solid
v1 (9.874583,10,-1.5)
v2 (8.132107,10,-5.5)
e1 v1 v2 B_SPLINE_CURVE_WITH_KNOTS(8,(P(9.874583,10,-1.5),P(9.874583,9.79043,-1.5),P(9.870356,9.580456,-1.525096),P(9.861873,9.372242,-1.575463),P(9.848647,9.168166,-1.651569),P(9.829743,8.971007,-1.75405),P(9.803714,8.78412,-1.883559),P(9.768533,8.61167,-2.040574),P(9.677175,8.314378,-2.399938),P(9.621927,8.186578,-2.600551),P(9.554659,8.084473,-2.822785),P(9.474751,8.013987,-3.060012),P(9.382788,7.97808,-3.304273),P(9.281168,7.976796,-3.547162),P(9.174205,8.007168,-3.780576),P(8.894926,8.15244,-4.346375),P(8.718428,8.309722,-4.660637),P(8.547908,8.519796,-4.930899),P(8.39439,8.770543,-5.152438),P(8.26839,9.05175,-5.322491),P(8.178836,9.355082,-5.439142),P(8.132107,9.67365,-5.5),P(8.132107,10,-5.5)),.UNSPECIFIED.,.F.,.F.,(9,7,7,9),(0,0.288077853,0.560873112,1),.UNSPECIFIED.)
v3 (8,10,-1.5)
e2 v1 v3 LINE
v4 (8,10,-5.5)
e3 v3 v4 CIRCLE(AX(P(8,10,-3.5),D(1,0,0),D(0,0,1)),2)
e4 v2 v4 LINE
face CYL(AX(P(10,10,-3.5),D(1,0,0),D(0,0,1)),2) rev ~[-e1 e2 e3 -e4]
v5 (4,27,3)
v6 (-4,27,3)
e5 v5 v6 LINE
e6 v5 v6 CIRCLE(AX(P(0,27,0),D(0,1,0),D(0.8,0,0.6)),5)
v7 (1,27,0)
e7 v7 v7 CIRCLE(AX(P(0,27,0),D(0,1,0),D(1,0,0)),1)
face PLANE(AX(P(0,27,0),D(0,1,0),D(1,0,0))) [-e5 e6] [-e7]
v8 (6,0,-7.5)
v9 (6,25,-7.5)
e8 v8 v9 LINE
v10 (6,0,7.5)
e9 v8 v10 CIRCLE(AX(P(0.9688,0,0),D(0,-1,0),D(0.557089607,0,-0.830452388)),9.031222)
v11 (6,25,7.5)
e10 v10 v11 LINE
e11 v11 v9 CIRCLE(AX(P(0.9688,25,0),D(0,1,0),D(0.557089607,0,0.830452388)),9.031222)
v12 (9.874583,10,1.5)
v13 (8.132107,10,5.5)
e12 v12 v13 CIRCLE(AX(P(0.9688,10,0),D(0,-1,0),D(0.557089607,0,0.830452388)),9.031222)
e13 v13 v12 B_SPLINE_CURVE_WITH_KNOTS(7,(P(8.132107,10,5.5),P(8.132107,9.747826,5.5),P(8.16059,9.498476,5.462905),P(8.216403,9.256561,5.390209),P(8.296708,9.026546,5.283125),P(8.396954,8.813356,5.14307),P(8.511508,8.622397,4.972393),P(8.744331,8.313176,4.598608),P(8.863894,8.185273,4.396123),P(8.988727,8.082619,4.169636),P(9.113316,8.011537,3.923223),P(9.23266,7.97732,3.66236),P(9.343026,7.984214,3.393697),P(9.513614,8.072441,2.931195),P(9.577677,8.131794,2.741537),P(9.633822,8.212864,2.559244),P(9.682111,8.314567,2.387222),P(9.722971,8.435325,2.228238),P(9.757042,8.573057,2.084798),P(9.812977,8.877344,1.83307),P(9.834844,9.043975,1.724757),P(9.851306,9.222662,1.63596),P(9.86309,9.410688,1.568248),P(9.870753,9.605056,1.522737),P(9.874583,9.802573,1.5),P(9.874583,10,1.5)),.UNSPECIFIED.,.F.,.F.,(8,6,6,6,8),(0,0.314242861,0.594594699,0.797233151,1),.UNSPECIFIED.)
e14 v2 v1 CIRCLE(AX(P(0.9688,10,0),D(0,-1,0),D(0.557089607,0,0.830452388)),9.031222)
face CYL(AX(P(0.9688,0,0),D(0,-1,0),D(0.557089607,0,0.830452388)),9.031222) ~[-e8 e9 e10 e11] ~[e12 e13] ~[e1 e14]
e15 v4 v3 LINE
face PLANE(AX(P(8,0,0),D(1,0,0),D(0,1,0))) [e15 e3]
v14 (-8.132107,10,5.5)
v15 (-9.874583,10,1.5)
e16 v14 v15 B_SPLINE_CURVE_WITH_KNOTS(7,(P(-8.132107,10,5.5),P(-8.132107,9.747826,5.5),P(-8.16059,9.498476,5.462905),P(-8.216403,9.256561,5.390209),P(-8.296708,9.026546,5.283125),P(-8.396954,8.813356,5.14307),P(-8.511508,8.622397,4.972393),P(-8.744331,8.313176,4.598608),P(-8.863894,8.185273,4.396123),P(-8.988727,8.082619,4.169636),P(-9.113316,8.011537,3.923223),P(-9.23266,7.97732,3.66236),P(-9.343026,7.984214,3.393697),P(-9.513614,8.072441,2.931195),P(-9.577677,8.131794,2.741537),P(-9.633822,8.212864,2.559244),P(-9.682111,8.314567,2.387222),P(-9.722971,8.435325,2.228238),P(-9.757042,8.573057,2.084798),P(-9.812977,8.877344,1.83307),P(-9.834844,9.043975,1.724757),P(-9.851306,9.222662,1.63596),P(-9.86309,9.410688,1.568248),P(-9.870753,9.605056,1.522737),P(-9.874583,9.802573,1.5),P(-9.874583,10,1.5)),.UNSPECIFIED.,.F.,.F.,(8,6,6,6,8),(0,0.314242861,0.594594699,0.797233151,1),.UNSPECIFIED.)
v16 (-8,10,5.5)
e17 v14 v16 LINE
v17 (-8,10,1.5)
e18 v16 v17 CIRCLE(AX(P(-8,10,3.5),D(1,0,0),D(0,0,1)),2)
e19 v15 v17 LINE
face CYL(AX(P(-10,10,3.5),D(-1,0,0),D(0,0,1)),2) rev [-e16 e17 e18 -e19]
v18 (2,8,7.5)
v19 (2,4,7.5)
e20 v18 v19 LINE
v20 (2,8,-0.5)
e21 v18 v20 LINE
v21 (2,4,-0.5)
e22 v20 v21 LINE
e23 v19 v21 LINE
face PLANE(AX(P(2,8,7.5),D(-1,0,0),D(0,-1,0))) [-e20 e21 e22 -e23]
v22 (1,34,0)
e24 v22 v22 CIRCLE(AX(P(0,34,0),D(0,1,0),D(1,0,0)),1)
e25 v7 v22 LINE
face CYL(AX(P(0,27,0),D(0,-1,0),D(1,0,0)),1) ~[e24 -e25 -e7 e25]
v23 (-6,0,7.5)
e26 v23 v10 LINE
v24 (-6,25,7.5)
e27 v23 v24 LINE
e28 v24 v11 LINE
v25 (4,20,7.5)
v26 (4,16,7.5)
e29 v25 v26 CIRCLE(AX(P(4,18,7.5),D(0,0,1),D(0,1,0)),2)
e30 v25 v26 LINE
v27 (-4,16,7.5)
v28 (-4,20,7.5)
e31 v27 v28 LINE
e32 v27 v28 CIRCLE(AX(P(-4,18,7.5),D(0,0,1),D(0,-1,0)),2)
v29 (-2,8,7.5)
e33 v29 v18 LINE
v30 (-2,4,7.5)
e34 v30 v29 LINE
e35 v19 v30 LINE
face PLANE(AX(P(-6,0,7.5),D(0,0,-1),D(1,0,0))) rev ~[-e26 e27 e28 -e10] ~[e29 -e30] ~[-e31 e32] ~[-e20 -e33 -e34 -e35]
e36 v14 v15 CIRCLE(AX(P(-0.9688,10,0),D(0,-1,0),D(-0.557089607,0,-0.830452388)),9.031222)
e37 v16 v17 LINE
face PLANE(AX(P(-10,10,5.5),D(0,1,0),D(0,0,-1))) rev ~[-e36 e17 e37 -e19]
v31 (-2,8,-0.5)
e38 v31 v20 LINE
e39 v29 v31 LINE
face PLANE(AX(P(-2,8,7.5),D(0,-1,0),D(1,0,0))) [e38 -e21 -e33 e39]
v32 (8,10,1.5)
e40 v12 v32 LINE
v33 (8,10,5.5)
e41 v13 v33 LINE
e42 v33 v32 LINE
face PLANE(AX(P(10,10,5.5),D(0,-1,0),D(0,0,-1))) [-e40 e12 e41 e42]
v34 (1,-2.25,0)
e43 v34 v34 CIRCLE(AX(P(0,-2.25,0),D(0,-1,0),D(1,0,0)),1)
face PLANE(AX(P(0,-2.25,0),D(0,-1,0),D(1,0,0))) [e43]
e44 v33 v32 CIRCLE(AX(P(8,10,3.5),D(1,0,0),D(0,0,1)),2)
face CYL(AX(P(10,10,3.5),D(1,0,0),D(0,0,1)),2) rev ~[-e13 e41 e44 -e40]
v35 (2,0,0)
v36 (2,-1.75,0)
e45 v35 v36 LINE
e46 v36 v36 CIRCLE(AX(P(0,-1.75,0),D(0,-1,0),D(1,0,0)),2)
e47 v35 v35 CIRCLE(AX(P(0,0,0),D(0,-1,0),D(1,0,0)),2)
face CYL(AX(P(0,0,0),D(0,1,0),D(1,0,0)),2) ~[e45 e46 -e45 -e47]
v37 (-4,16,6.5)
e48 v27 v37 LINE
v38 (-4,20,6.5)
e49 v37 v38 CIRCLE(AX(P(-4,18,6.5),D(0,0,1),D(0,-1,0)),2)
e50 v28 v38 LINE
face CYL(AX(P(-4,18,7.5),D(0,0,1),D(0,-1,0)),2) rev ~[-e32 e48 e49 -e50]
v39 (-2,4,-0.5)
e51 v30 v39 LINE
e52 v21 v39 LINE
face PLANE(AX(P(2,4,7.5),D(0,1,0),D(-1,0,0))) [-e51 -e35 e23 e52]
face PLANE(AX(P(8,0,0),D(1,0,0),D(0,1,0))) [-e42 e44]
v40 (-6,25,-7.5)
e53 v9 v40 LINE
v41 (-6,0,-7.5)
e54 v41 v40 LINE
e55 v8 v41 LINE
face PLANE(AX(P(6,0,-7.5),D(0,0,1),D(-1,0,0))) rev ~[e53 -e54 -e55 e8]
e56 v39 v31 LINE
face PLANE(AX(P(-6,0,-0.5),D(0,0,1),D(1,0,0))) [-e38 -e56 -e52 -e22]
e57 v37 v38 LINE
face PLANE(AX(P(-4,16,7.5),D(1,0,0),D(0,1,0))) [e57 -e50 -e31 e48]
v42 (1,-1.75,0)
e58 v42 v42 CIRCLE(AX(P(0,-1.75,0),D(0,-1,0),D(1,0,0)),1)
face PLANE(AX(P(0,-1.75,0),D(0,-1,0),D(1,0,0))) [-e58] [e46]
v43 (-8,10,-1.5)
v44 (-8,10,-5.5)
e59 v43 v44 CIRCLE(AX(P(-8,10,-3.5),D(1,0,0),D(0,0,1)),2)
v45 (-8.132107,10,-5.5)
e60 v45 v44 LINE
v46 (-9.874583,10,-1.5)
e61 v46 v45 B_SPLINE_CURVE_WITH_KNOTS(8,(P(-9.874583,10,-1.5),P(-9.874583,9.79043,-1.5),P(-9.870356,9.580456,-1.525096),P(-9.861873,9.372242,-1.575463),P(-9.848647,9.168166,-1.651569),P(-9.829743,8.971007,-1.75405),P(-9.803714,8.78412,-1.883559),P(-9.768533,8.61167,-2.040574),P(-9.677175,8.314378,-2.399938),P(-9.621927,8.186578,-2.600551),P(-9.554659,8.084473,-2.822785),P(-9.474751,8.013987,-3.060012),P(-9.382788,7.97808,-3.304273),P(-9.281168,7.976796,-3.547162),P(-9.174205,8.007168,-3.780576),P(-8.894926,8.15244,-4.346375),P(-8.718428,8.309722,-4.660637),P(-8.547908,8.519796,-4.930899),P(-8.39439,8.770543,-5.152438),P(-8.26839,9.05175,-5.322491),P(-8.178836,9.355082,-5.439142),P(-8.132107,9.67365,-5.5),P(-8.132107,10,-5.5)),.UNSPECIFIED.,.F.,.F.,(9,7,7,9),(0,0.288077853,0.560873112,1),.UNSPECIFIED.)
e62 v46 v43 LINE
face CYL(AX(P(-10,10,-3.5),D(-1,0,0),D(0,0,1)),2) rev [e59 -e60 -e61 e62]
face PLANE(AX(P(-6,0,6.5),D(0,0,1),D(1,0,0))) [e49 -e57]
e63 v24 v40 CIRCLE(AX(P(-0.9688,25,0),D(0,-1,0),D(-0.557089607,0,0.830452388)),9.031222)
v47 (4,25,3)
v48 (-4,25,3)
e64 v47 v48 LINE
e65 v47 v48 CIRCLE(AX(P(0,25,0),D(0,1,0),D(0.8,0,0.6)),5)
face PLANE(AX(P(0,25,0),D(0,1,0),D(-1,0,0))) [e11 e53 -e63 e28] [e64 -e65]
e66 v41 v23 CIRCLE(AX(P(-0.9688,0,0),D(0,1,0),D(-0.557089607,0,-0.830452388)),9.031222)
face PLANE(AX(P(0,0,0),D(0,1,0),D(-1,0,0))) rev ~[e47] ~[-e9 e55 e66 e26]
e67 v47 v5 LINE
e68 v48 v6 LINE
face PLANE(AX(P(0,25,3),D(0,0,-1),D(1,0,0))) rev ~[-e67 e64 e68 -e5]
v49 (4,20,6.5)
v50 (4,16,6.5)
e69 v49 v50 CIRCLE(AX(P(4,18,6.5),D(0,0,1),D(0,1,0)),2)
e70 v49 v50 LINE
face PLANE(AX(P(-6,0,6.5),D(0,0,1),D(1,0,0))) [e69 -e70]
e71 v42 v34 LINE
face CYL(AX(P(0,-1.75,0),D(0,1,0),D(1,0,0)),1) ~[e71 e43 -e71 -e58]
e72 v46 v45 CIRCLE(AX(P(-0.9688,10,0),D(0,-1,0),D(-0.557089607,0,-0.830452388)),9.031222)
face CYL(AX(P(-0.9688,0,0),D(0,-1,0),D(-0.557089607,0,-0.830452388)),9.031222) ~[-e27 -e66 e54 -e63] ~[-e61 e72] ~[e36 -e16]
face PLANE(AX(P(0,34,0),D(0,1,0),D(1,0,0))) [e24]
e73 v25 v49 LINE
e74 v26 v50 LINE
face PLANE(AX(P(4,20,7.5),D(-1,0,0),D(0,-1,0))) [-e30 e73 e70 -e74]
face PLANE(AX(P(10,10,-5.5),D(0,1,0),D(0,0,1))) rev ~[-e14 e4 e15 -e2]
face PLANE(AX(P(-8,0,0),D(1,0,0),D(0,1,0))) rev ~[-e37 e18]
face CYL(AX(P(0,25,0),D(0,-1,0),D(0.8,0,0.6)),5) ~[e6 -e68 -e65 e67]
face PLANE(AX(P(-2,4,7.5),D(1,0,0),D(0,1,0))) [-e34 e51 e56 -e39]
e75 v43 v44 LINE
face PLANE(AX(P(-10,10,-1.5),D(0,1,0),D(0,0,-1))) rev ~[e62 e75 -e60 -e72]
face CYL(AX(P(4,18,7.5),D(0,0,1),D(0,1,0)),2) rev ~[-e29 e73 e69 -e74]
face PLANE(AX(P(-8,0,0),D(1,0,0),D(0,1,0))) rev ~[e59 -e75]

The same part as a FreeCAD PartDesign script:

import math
import FreeCAD as App
import Part
import Sketcher
Q = App.Units.Quantity

doc = App.newDocument("Part")
body = doc.addObject("PartDesign::Body", "Body")

sketch1 = body.newObject("Sketcher::SketchObject", "Sketch")
sketch1.AttachmentSupport = (doc.getObject("XZ_Plane"), [""])
sketch1.MapMode = "FlatFace"
sketch1.addGeometry(Part.ArcOfCircle(Part.Circle(App.Vector(-1, 0, 0), App.Vector(0, 0, 1), 9), math.radians(124), math.radians(236)), False)
sketch1.addGeometry(Part.LineSegment(App.Vector(-6, 8, 0), App.Vector(6, 8, 0)), False)
sketch1.addGeometry(Part.ArcOfCircle(Part.Circle(App.Vector(1, 0, 0), App.Vector(0, 0, 1), 9), math.radians(-56), math.radians(56)), False)
sketch1.addGeometry(Part.LineSegment(App.Vector(6, -8, 0), App.Vector(-6, -8, 0)), False)
sketch1.addConstraint(Sketcher.Constraint("Coincident", 0, 1, 1, 1))
sketch1.addConstraint(Sketcher.Constraint("Coincident", 1, 2, 2, 2))
sketch1.addConstraint(Sketcher.Constraint("Coincident", 2, 1, 3, 1))
sketch1.addConstraint(Sketcher.Constraint("Coincident", 3, 2, 0, 2))
sketch1.addConstraint(Sketcher.Constraint("Horizontal", 1))
sketch1.addConstraint(Sketcher.Constraint("Horizontal", 3))
sketch1.addConstraint(Sketcher.Constraint("Equal", 0, 2))
sketch1.addConstraint(Sketcher.Constraint("Symmetric", 0, 3, 2, 3, -1, 1))
sketch1.addConstraint(Sketcher.Constraint("Symmetric", 1, 2, 2, 1, -1))
sketch1.addConstraint(Sketcher.Constraint("DistanceY", 2, 1, 1, 2, Q("15 mm")))
sketch1.addConstraint(Sketcher.Constraint("DistanceX", 1, 1, 1, 2, Q("12 mm")))
sketch1.addConstraint(Sketcher.Constraint("Radius", 0, Q("9.0312 mm")))
pad1 = body.newObject("PartDesign::Pad", "Pad")
pad1.Profile = sketch1
pad1.Length = 25
pad1.Reversed = True

sketch2 = body.newObject("Sketcher::SketchObject", "Sketch001")
sketch2.AttachmentSupport = (doc.getObject("XZ_Plane"), [""])
sketch2.MapMode = "FlatFace"
sketch2.AttachmentOffset = App.Placement(App.Vector(0, 0, -25), App.Rotation())
sketch2.addGeometry(Part.LineSegment(App.Vector(-4, 3, 0), App.Vector(4, 3, 0)), False)
sketch2.addGeometry(Part.ArcOfCircle(Part.Circle(App.Vector(0, 0, 0), App.Vector(0, 0, 1), 5), math.radians(143), math.radians(397)), False)
sketch2.addConstraint(Sketcher.Constraint("Coincident", 0, 1, 1, 1))
sketch2.addConstraint(Sketcher.Constraint("Coincident", 1, 2, 0, 2))
sketch2.addConstraint(Sketcher.Constraint("Horizontal", 0))
sketch2.addConstraint(Sketcher.Constraint("Coincident", 1, 3, -1, 1))
sketch2.addConstraint(Sketcher.Constraint("Radius", 1, Q("5 mm")))
sketch2.addConstraint(Sketcher.Constraint("DistanceY", -1, 1, 0, 1, Q("3 mm")))
pad2 = body.newObject("PartDesign::Pad", "Pad001")
pad2.Profile = sketch2
pad2.Length = 2
pad2.Reversed = True

sketch3 = body.newObject("Sketcher::SketchObject", "Sketch002")
sketch3.AttachmentSupport = (doc.getObject("XZ_Plane"), [""])
sketch3.MapMode = "FlatFace"
sketch3.AttachmentOffset = App.Placement(App.Vector(0, 0, -27), App.Rotation())
sketch3.addGeometry(Part.Circle(App.Vector(0, 0, 0), App.Vector(0, 0, 1), 1), False)
sketch3.addConstraint(Sketcher.Constraint("Coincident", 0, 3, -1, 1))
sketch3.addConstraint(Sketcher.Constraint("Diameter", 0, Q("2 mm")))
pad3 = body.newObject("PartDesign::Pad", "Pad002")
pad3.Profile = sketch3
pad3.Length = 7
pad3.Reversed = True

sketch4 = body.newObject("Sketcher::SketchObject", "Sketch003")
sketch4.AttachmentSupport = (doc.getObject("XY_Plane"), [""])
sketch4.MapMode = "FlatFace"
sketch4.AttachmentOffset = App.Placement(App.Vector(0, 0, 7.5), App.Rotation())
sketch4.addGeometry(Part.LineSegment(App.Vector(4, 16, 0), App.Vector(4, 20, 0)), False)
sketch4.addGeometry(Part.ArcOfCircle(Part.Circle(App.Vector(4, 18, 0), App.Vector(0, 0, 1), 2), math.radians(90), math.radians(270)), False)
sketch4.addGeometry(Part.LineSegment(App.Vector(-4, 20, 0), App.Vector(-4, 16, 0)), False)
sketch4.addGeometry(Part.ArcOfCircle(Part.Circle(App.Vector(-4, 18, 0), App.Vector(0, 0, 1), 2), math.radians(-90), math.radians(90)), False)
sketch4.addConstraint(Sketcher.Constraint("Coincident", 0, 1, 1, 2))
sketch4.addConstraint(Sketcher.Constraint("Coincident", 1, 1, 0, 2))
sketch4.addConstraint(Sketcher.Constraint("Coincident", 2, 1, 3, 2))
sketch4.addConstraint(Sketcher.Constraint("Coincident", 3, 1, 2, 2))
sketch4.addConstraint(Sketcher.Constraint("Vertical", 0))
sketch4.addConstraint(Sketcher.Constraint("Vertical", 2))
sketch4.addConstraint(Sketcher.Constraint("Equal", 1, 3))
sketch4.addConstraint(Sketcher.Constraint("Symmetric", 1, 3, 3, 3, -2))
sketch4.addConstraint(Sketcher.Constraint("Vertical", 1, 3, 0, 1))
sketch4.addConstraint(Sketcher.Constraint("Vertical", 3, 3, 2, 1))
sketch4.addConstraint(Sketcher.Constraint("Radius", 1, Q("2 mm")))
sketch4.addConstraint(Sketcher.Constraint("DistanceX", -1, 1, 1, 3, Q("4 mm")))
sketch4.addConstraint(Sketcher.Constraint("DistanceY", -1, 1, 1, 1, Q("20 mm")))
pocket1 = body.newObject("PartDesign::Pocket", "Pocket")
pocket1.Profile = sketch4
pocket1.Length = 1

sketch5 = body.newObject("Sketcher::SketchObject", "Sketch004")
sketch5.AttachmentSupport = (doc.getObject("XY_Plane"), [""])
sketch5.MapMode = "FlatFace"
sketch5.AttachmentOffset = App.Placement(App.Vector(0, 0, 7.5), App.Rotation())
sketch5.addGeometry(Part.LineSegment(App.Vector(2, 8, 0), App.Vector(-2, 8, 0)), False)
sketch5.addGeometry(Part.LineSegment(App.Vector(-2, 8, 0), App.Vector(-2, 4, 0)), False)
sketch5.addGeometry(Part.LineSegment(App.Vector(-2, 4, 0), App.Vector(2, 4, 0)), False)
sketch5.addGeometry(Part.LineSegment(App.Vector(2, 4, 0), App.Vector(2, 8, 0)), False)
sketch5.addConstraint(Sketcher.Constraint("Coincident", 0, 2, 1, 1))
sketch5.addConstraint(Sketcher.Constraint("Coincident", 1, 2, 2, 1))
sketch5.addConstraint(Sketcher.Constraint("Coincident", 2, 2, 3, 1))
sketch5.addConstraint(Sketcher.Constraint("Coincident", 3, 2, 0, 1))
sketch5.addConstraint(Sketcher.Constraint("Horizontal", 0))
sketch5.addConstraint(Sketcher.Constraint("Vertical", 1))
sketch5.addConstraint(Sketcher.Constraint("Horizontal", 2))
sketch5.addConstraint(Sketcher.Constraint("Vertical", 3))
sketch5.addConstraint(Sketcher.Constraint("Equal", 2, 1))
sketch5.addConstraint(Sketcher.Constraint("DistanceX", 0, 2, 0, 1, Q("4 mm")))
sketch5.addConstraint(Sketcher.Constraint("DistanceX", 0, 2, -1, 1, Q("2 mm")))
sketch5.addConstraint(Sketcher.Constraint("DistanceY", -1, 1, 0, 2, Q("8 mm")))
pocket2 = body.newObject("PartDesign::Pocket", "Pocket001")
pocket2.Profile = sketch5
pocket2.Length = 8

sketch6 = body.newObject("Sketcher::SketchObject", "Sketch005")
sketch6.AttachmentSupport = (doc.getObject("YZ_Plane"), [""])
sketch6.MapMode = "FlatFace"
sketch6.AttachmentOffset = App.Placement(App.Vector(0, 0, 10), App.Rotation())
sketch6.addGeometry(Part.LineSegment(App.Vector(10, 1.5, 0), App.Vector(10, 5.5, 0)), False)
sketch6.addGeometry(Part.ArcOfCircle(Part.Circle(App.Vector(10, 3.5, 0), App.Vector(0, 0, 1), 2), math.radians(90), math.radians(270)), False)
sketch6.addGeometry(Part.LineSegment(App.Vector(10, -5.5, 0), App.Vector(10, -1.5, 0)), False)
sketch6.addGeometry(Part.ArcOfCircle(Part.Circle(App.Vector(10, -3.5, 0), App.Vector(0, 0, 1), 2), math.radians(90), math.radians(270)), False)
sketch6.addConstraint(Sketcher.Constraint("Coincident", 0, 1, 1, 2))
sketch6.addConstraint(Sketcher.Constraint("Coincident", 1, 1, 0, 2))
sketch6.addConstraint(Sketcher.Constraint("Coincident", 2, 1, 3, 2))
sketch6.addConstraint(Sketcher.Constraint("Coincident", 3, 1, 2, 2))
sketch6.addConstraint(Sketcher.Constraint("Vertical", 0))
sketch6.addConstraint(Sketcher.Constraint("Vertical", 2))
sketch6.addConstraint(Sketcher.Constraint("Equal", 1, 3))
sketch6.addConstraint(Sketcher.Constraint("Symmetric", 1, 3, 3, 3, -1))
sketch6.addConstraint(Sketcher.Constraint("Vertical", 3, 3, 0, 1))
sketch6.addConstraint(Sketcher.Constraint("Vertical", 1, 1, 2, 1))
sketch6.addConstraint(Sketcher.Constraint("Radius", 1, Q("2 mm")))
sketch6.addConstraint(Sketcher.Constraint("DistanceX", -1, 1, 1, 3, Q("10 mm")))
sketch6.addConstraint(Sketcher.Constraint("DistanceY", 3, 3, 1, 3, Q("7 mm")))
pocket3 = body.newObject("PartDesign::Pocket", "Pocket002")
pocket3.Profile = sketch6
pocket3.Length = 2

sketch7 = body.newObject("Sketcher::SketchObject", "Sketch006")
sketch7.AttachmentSupport = (doc.getObject("YZ_Plane"), [""])
sketch7.MapMode = "FlatFace"
sketch7.AttachmentOffset = App.Placement(App.Vector(0, 0, -10), App.Rotation())
sketch7.addGeometry(Part.LineSegment(App.Vector(10, -5.5, 0), App.Vector(10, -1.5, 0)), False)
sketch7.addGeometry(Part.ArcOfCircle(Part.Circle(App.Vector(10, -3.5, 0), App.Vector(0, 0, 1), 2), math.radians(90), math.radians(270)), False)
sketch7.addGeometry(Part.LineSegment(App.Vector(10, 1.5, 0), App.Vector(10, 5.5, 0)), False)
sketch7.addGeometry(Part.ArcOfCircle(Part.Circle(App.Vector(10, 3.5, 0), App.Vector(0, 0, 1), 2), math.radians(90), math.radians(270)), False)
sketch7.addConstraint(Sketcher.Constraint("Coincident", 0, 1, 1, 2))
sketch7.addConstraint(Sketcher.Constraint("Coincident", 1, 1, 0, 2))
sketch7.addConstraint(Sketcher.Constraint("Coincident", 2, 1, 3, 2))
sketch7.addConstraint(Sketcher.Constraint("Coincident", 3, 1, 2, 2))
sketch7.addConstraint(Sketcher.Constraint("Vertical", 0))
sketch7.addConstraint(Sketcher.Constraint("Vertical", 2))
sketch7.addConstraint(Sketcher.Constraint("Equal", 1, 3))
sketch7.addConstraint(Sketcher.Constraint("Symmetric", 1, 3, 3, 3, -1))
sketch7.addConstraint(Sketcher.Constraint("Vertical", 3, 3, 0, 1))
sketch7.addConstraint(Sketcher.Constraint("Vertical", 1, 1, 2, 1))
sketch7.addConstraint(Sketcher.Constraint("Radius", 1, Q("2 mm")))
sketch7.addConstraint(Sketcher.Constraint("DistanceX", -1, 1, 1, 3, Q("10 mm")))
sketch7.addConstraint(Sketcher.Constraint("DistanceY", 1, 3, 3, 3, Q("7 mm")))
pocket4 = body.newObject("PartDesign::Pocket", "Pocket003")
pocket4.Profile = sketch7
pocket4.Length = 2
pocket4.Reversed = True

sketch8 = body.newObject("Sketcher::SketchObject", "Sketch007")
sketch8.AttachmentSupport = (doc.getObject("XZ_Plane"), [""])
sketch8.MapMode = "FlatFace"
sketch8.addGeometry(Part.Circle(App.Vector(0, 0, 0), App.Vector(0, 0, 1), 2), False)
sketch8.addConstraint(Sketcher.Constraint("Coincident", 0, 3, -1, 1))
sketch8.addConstraint(Sketcher.Constraint("Diameter", 0, Q("4 mm")))
pad4 = body.newObject("PartDesign::Pad", "Pad003")
pad4.Profile = sketch8
pad4.Length = 1.75

sketch9 = body.newObject("Sketcher::SketchObject", "Sketch008")
sketch9.AttachmentSupport = (doc.getObject("XZ_Plane"), [""])
sketch9.MapMode = "FlatFace"
sketch9.AttachmentOffset = App.Placement(App.Vector(0, 0, 1.75), App.Rotation())
sketch9.addGeometry(Part.Circle(App.Vector(0, 0, 0), App.Vector(0, 0, 1), 1), False)
sketch9.addConstraint(Sketcher.Constraint("Coincident", 0, 3, -1, 1))
sketch9.addConstraint(Sketcher.Constraint("Diameter", 0, Q("2 mm")))
pad5 = body.newObject("PartDesign::Pad", "Pad004")
pad5.Profile = sketch9
pad5.Length = 0.5

doc.recompute()
